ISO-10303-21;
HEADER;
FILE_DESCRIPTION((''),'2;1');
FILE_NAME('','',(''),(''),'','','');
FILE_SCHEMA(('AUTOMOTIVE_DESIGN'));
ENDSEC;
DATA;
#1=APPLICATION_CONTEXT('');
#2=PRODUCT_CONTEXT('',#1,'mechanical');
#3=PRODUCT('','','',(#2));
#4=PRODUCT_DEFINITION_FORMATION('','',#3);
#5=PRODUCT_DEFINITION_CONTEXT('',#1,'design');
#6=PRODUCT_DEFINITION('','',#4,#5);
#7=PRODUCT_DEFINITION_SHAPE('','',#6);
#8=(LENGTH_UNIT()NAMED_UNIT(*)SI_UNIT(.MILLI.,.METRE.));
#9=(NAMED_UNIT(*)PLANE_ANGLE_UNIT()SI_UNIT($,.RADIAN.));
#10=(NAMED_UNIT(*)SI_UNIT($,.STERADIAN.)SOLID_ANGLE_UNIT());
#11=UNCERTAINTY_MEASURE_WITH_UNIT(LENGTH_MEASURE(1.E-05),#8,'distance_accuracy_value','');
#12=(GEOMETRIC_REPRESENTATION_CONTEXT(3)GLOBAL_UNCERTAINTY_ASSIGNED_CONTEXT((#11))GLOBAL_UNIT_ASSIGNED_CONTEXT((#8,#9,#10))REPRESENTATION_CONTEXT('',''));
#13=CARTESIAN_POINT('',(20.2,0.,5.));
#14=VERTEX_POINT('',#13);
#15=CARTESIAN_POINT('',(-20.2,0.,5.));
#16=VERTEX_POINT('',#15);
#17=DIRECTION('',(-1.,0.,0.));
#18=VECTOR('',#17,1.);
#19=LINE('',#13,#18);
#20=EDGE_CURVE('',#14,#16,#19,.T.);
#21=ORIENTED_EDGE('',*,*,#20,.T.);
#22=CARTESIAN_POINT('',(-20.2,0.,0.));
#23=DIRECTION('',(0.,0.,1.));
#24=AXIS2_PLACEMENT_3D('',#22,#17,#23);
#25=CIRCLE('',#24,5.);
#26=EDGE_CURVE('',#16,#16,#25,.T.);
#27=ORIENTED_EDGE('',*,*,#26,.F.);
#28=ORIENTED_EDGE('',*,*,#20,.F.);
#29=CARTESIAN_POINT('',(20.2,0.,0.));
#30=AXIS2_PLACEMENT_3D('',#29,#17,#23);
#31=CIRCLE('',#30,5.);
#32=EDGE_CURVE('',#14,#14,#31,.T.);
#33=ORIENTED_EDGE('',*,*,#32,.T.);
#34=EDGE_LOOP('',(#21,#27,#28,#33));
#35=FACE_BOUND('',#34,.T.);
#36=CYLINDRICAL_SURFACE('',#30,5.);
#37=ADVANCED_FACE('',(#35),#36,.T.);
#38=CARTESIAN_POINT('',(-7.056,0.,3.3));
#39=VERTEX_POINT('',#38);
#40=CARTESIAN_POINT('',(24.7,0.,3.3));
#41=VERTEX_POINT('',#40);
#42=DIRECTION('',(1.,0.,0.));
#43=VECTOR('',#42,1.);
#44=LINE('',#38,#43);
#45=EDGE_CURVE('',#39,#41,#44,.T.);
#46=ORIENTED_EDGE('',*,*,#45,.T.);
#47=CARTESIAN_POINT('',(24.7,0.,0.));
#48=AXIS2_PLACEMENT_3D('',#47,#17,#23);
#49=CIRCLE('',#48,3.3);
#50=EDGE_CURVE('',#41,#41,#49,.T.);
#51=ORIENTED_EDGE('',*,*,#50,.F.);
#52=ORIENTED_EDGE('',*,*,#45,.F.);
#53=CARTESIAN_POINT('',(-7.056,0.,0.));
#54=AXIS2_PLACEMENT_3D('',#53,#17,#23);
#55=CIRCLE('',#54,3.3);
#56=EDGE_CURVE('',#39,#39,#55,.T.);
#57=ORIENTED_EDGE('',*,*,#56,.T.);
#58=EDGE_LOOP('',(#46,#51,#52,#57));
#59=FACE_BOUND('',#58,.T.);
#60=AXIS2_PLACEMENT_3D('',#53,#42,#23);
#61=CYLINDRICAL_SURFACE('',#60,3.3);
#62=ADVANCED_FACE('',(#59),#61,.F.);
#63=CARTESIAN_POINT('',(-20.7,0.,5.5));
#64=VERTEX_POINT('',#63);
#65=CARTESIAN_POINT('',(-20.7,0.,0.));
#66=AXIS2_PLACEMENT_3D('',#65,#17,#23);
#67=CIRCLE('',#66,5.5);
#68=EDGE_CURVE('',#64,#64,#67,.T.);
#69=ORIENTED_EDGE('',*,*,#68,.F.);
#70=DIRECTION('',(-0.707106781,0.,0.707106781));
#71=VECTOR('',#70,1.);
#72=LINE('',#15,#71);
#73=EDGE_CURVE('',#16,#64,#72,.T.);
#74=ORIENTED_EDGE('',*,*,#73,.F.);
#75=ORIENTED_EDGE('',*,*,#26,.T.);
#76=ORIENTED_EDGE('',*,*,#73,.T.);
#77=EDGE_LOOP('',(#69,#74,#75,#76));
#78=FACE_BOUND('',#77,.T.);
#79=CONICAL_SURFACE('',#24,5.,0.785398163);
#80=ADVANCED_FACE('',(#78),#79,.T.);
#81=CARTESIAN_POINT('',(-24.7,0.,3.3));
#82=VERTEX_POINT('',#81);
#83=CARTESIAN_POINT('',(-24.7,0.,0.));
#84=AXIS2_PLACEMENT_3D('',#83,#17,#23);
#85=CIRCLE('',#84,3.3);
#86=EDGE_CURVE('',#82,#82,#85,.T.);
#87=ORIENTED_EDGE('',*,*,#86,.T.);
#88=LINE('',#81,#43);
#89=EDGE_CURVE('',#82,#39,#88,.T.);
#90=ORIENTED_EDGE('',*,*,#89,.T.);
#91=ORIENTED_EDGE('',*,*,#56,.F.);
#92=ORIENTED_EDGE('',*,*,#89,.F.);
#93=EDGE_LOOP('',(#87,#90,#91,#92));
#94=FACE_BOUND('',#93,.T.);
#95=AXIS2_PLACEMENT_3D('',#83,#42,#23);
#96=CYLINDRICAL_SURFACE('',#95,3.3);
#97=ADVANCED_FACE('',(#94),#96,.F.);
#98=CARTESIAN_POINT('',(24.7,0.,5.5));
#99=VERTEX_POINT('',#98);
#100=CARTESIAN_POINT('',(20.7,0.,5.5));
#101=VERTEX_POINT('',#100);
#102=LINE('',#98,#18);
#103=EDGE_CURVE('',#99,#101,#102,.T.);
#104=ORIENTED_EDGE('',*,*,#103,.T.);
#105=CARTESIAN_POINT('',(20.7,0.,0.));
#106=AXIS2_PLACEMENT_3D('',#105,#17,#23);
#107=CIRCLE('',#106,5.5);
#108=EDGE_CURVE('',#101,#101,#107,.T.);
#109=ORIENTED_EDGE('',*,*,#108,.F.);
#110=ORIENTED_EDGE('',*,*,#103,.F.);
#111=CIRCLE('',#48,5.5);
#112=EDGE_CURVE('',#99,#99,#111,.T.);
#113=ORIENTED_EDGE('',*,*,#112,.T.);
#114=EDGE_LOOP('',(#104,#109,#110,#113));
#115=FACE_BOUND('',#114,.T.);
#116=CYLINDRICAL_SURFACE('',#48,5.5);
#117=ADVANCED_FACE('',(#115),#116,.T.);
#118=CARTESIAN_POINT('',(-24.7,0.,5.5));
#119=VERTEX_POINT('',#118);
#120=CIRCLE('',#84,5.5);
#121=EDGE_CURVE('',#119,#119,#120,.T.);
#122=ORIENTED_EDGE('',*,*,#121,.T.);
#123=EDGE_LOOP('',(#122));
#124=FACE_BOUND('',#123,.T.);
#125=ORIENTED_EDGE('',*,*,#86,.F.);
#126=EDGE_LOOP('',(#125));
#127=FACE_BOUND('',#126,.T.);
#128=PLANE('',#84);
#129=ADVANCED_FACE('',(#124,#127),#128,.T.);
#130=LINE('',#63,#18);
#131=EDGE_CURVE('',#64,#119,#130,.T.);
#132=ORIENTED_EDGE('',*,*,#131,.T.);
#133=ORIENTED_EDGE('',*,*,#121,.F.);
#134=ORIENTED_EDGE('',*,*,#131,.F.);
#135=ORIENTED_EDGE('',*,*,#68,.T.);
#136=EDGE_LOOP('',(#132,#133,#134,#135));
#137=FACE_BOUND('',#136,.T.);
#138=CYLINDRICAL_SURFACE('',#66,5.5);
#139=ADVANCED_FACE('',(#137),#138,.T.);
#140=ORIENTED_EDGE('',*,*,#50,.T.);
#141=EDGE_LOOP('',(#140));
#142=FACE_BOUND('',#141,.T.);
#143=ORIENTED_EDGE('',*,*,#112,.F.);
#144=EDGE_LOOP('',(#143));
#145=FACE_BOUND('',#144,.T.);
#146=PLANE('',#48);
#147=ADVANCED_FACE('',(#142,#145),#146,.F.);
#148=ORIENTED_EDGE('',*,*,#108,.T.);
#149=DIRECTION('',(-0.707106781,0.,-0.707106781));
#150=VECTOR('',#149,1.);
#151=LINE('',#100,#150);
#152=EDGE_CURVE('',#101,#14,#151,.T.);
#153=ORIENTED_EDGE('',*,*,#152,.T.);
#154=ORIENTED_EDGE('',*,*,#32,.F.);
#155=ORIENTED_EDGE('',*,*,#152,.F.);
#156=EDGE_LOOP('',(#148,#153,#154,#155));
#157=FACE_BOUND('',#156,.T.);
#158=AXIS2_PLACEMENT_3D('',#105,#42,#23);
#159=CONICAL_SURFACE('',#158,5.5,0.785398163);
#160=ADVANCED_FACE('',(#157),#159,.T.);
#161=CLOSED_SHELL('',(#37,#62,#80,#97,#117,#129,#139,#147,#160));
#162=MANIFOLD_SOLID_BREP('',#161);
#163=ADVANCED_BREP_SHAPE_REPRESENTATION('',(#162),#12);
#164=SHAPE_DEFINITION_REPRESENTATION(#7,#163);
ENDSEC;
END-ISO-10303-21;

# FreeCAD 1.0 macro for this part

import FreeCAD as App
import Part
import Sketcher
from FreeCAD import Vector


def add_polygon(sketch, points):
    """Adds a closed chain of lines whose ends are joined by coincident constraints."""
    first, n = sketch.GeometryCount, len(points)
    for a, b in zip(points, points[1:] + points[:1]):
        sketch.addGeometry(Part.LineSegment(App.Vector(*a, 0), App.Vector(*b, 0)), False)
    for i in range(n):
        sketch.addConstraint(Sketcher.Constraint("Coincident", first + i, 2, first + (i + 1) % n, 1))

doc = App.newDocument("Part")
body = doc.addObject("PartDesign::Body", "Body")

# Sketch on XZ plane
sketch1 = doc.addObject("Sketcher::SketchObject", "Sketch")
body.addObject(sketch1)
sketch1.AttachmentSupport = (doc.XZ_Plane, [""])
sketch1.MapMode = "FlatFace"
add_polygon(sketch1, [(24.7, 3.3), (-24.7, 3.3), (-24.7, 5.5), (-20.7, 5.5), (-20.2, 5), (20.2, 5), (20.7, 5.5), (24.7, 5.5)])  # lines 0-7
sketch1.addConstraint([
    Sketcher.Constraint("Horizontal", 0),
    Sketcher.Constraint("Vertical", 1),
    Sketcher.Constraint("Horizontal", 2),
    Sketcher.Constraint("Horizontal", 4),
    Sketcher.Constraint("Horizontal", 6),
    Sketcher.Constraint("Vertical", 7),
    Sketcher.Constraint("Symmetric", 2, 2, 5, 2, -2),
    Sketcher.Constraint("Perpendicular", 3, 5),
    Sketcher.Constraint("Equal", 2, 6),
    Sketcher.Constraint("Equal", 3, 5),
    Sketcher.Constraint("DistanceX", 0, 2, 0, 1, 49.4),
    Sketcher.Constraint("DistanceX", 4, 1, 4, 2, 40.4),
    Sketcher.Constraint("DistanceY", -1, 1, 3, 2, 5.0),
    Sketcher.Constraint("DistanceY", -1, 1, 0, 2, 3.3),
    Sketcher.Constraint("DistanceX", 2, 2, 3, 2, 0.5),
])
revolution = doc.addObject("PartDesign::Revolution", "Revolution")
body.addObject(revolution)
revolution.Profile = sketch1
revolution.ReferenceAxis = (sketch1, ["H_Axis"])
revolution.Angle = 360

doc.recompute()
